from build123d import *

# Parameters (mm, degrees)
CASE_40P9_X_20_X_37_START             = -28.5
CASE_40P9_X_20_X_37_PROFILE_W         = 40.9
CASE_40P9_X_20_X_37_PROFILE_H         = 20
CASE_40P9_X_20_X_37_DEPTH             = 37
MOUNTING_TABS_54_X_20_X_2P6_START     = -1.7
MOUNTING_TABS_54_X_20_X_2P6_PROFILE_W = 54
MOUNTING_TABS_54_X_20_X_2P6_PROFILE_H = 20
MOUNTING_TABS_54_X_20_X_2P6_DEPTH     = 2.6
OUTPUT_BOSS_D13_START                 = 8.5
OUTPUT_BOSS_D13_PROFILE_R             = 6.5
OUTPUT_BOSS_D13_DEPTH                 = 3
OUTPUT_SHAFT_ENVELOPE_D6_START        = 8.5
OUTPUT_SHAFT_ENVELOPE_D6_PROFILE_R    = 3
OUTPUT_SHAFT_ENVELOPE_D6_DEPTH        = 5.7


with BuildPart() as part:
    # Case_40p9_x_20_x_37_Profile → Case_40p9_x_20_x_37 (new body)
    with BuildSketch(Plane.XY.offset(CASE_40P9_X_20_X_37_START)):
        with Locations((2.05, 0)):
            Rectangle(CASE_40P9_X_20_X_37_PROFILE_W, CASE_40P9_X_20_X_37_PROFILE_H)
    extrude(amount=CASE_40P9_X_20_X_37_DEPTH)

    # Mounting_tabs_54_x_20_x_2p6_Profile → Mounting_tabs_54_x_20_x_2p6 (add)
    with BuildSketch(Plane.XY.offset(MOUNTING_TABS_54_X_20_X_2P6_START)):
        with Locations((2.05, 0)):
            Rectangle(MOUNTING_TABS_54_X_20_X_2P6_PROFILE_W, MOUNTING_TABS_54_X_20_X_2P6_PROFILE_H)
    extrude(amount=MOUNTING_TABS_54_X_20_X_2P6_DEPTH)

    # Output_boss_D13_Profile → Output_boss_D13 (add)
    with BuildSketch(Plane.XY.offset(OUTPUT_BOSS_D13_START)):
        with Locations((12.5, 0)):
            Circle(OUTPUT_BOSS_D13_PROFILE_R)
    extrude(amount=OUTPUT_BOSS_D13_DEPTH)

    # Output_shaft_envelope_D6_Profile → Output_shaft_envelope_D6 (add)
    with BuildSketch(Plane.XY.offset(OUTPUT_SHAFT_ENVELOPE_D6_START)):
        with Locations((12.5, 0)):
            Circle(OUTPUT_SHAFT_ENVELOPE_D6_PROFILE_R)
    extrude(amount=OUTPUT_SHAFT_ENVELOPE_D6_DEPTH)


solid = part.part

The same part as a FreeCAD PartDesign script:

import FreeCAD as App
import Part
import Sketcher
from FreeCAD import Vector


def add_polygon(sketch, points):
    """Adds a closed chain of lines whose ends are joined by coincident constraints."""
    first, n = sketch.GeometryCount, len(points)
    for a, b in zip(points, points[1:] + points[:1]):
        sketch.addGeometry(Part.LineSegment(App.Vector(*a, 0), App.Vector(*b, 0)), False)
    for i in range(n):
        sketch.addConstraint(Sketcher.Constraint("Coincident", first + i, 2, first + (i + 1) % n, 1))

doc = App.newDocument("Part")
body = doc.addObject("PartDesign::Body", "Body")

sketch1 = doc.addObject("Sketcher::SketchObject", "Sketch")
body.addObject(sketch1)
sketch1.AttachmentSupport = (doc.XY_Plane, [""])
sketch1.MapMode = "FlatFace"
sketch1.AttachmentOffset = App.Placement(Vector(0, 0, -28.5), App.Rotation())
add_polygon(sketch1, [(-18.4, 10), (-18.4, -10), (22.5, -10), (22.5, 10)])
sketch1.addConstraint([
    Sketcher.Constraint("Vertical", 0),
    Sketcher.Constraint("Horizontal", 1),
    Sketcher.Constraint("Vertical", 2),
    Sketcher.Constraint("Horizontal", 3),
    Sketcher.Constraint("DistanceY", 0, 2, 0, 1, 20.0),
    Sketcher.Constraint("DistanceX", 1, 1, 1, 2, 40.9),
    Sketcher.Constraint("DistanceY", 0, 2, -1, 1, 10.0),
    Sketcher.Constraint("DistanceX", 0, 2, -1, 1, 18.4),
])
pad1 = doc.addObject("PartDesign::Pad", "Pad")
body.addObject(pad1)
pad1.Profile = sketch1
pad1.Length = 37

sketch2 = doc.addObject("Sketcher::SketchObject", "Sketch001")
body.addObject(sketch2)
sketch2.AttachmentSupport = (doc.XY_Plane, [""])
sketch2.MapMode = "FlatFace"
sketch2.AttachmentOffset = App.Placement(Vector(0, 0, -1.7), App.Rotation())
add_polygon(sketch2, [(-24.95, 10), (-24.95, -10), (29.05, -10), (29.05, 10)])
sketch2.addConstraint([
    Sketcher.Constraint("Vertical", 0),
    Sketcher.Constraint("Horizontal", 1),
    Sketcher.Constraint("Vertical", 2),
    Sketcher.Constraint("Horizontal", 3),
    Sketcher.Constraint("DistanceX", 1, 1, 1, 2, 54.0),
    Sketcher.Constraint("DistanceY", 0, 2, 0, 1, 20.0),
    Sketcher.Constraint("DistanceY", 0, 2, -1, 1, 10.0),
    Sketcher.Constraint("DistanceX", 0, 2, -1, 1, 24.95),
])
pad2 = doc.addObject("PartDesign::Pad", "Pad001")
body.addObject(pad2)
pad2.Profile = sketch2
pad2.Length = 2.6

sketch3 = doc.addObject("Sketcher::SketchObject", "Sketch002")
body.addObject(sketch3)
sketch3.AttachmentSupport = (doc.XY_Plane, [""])
sketch3.MapMode = "FlatFace"
sketch3.AttachmentOffset = App.Placement(Vector(0, 0, 8.5), App.Rotation())
sketch3.addGeometry(Part.Circle(Vector(12.5, 0, 0), Vector(0, 0, 1), 6.5), False)
sketch3.addConstraint([
    Sketcher.Constraint("PointOnObject", 0, 3, -1),
    Sketcher.Constraint("Diameter", 0, 13.0),
    Sketcher.Constraint("DistanceX", -1, 1, 0, 3, 12.5),
])
pad3 = doc.addObject("PartDesign::Pad", "Pad002")
body.addObject(pad3)
pad3.Profile = sketch3
pad3.Length = 3

sketch4 = doc.addObject("Sketcher::SketchObject", "Sketch003")
body.addObject(sketch4)
sketch4.AttachmentSupport = (doc.XY_Plane, [""])
sketch4.MapMode = "FlatFace"
sketch4.AttachmentOffset = App.Placement(Vector(0, 0, 8.5), App.Rotation())
sketch4.addGeometry(Part.Circle(Vector(12.5, 0, 0), Vector(0, 0, 1), 3), False)
sketch4.addConstraint([
    Sketcher.Constraint("PointOnObject", 0, 3, -1),
    Sketcher.Constraint("Diameter", 0, 6.0),
    Sketcher.Constraint("DistanceX", -1, 1, 0, 3, 12.5),
])
pad4 = doc.addObject("PartDesign::Pad", "Pad003")
body.addObject(pad4)
pad4.Profile = sketch4
pad4.Length = 5.7

doc.recompute()
